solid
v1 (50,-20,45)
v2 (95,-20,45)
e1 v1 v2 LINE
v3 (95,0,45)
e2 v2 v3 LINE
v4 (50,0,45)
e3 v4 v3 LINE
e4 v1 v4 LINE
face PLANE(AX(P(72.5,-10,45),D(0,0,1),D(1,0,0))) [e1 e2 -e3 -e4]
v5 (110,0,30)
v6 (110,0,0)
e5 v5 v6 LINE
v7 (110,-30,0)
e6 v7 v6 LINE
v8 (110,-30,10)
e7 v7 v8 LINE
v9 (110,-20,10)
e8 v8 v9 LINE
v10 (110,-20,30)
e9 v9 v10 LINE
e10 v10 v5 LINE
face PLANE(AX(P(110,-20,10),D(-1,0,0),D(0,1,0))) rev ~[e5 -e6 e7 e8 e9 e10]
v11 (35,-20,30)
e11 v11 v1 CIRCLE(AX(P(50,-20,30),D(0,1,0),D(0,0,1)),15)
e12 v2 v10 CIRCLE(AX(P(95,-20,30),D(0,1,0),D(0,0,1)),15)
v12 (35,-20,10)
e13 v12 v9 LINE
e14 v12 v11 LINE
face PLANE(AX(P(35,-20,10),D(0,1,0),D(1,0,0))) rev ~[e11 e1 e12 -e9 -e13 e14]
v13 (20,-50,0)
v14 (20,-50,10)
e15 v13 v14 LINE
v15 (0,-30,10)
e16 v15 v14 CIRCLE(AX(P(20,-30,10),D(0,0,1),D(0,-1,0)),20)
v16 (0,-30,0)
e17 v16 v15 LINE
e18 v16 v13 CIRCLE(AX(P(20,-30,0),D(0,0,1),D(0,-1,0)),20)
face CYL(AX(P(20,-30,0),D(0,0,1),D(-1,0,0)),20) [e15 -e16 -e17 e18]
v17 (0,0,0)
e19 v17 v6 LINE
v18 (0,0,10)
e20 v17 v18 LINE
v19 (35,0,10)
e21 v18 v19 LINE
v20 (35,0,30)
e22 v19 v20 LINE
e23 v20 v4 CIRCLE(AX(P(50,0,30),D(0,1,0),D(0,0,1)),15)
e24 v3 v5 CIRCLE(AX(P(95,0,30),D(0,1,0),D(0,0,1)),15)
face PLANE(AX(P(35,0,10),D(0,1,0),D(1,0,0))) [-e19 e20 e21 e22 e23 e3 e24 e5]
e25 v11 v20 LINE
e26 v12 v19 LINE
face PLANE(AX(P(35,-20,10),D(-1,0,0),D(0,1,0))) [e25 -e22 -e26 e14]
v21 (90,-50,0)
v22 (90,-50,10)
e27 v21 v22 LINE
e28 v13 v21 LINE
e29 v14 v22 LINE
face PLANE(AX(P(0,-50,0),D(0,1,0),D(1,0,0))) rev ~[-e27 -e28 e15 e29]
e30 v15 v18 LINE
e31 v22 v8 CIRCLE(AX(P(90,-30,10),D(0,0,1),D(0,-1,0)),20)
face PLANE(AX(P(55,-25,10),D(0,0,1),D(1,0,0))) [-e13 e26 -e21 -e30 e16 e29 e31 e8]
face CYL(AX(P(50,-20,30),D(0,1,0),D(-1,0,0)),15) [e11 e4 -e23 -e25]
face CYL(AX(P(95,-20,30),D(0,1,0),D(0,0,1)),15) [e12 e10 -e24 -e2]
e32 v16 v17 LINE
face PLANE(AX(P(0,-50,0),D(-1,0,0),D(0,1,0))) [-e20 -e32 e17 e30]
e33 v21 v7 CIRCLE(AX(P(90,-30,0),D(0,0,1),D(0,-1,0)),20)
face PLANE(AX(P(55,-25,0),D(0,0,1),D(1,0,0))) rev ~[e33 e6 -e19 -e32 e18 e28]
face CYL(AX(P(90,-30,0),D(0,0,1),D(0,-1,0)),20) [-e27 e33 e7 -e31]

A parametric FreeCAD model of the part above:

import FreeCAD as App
import Part
import Sketcher


def edges_at(feature, points):
    """Names of the edges that pass closest to the given points."""
    edges = feature.Shape.Edges
    near = lambda p: min(range(len(edges)), key=lambda i: edges[i].distToShape(Part.Vertex(*p))[0])
    return sorted({f"Edge{near(p) + 1}" for p in points})


def add_polygon(sketch, points):
    """Adds a closed chain of lines whose ends are joined by coincident constraints."""
    first, n = sketch.GeometryCount, len(points)
    for a, b in zip(points, points[1:] + points[:1]):
        sketch.addGeometry(Part.LineSegment(App.Vector(*a, 0), App.Vector(*b, 0)), False)
    for i in range(n):
        sketch.addConstraint(Sketcher.Constraint("Coincident", first + i, 2, first + (i + 1) % n, 1))

doc = App.newDocument("Part")
body = doc.addObject("PartDesign::Body", "Body")

sketch1 = body.newObject("Sketcher::SketchObject", "Sketch")
sketch1.AttachmentSupport = (doc.getObject("XY_Plane"), [""])
sketch1.MapMode = "FlatFace"
add_polygon(sketch1, [(0, 0), (0, -50), (110, -50), (110, 0)])
sketch1.addConstraint([
    Sketcher.Constraint("Vertical", 0),
    Sketcher.Constraint("Horizontal", 1),
    Sketcher.Constraint("Vertical", 2),
    Sketcher.Constraint("Horizontal", 3),
    Sketcher.Constraint("Coincident", 3, 2, -1, 1),
    Sketcher.Constraint("DistanceX", 1, 1, 1, 2, 110.0),
    Sketcher.Constraint("DistanceY", 0, 2, 0, 1, 50.0),
])
pad1 = body.newObject("PartDesign::Pad", "Pad")
pad1.Profile = sketch1
pad1.Length = 10
doc.recompute()

fillet = body.newObject("PartDesign::Fillet", "Fillet")
fillet.Base = (pad1, edges_at(pad1, [(0, -50, 5), (110, -50, 5)]))
fillet.Radius = 20

sketch2 = body.newObject("Sketcher::SketchObject", "Sketch001")
sketch2.AttachmentSupport = (doc.getObject("XY_Plane"), [""])
sketch2.MapMode = "FlatFace"
sketch2.AttachmentOffset = App.Placement(App.Vector(0, 0, 10), App.Rotation())
add_polygon(sketch2, [(35, 0), (35, -20), (110, -20), (110, 0)])
sketch2.addConstraint([
    Sketcher.Constraint("Vertical", 0),
    Sketcher.Constraint("Horizontal", 1),
    Sketcher.Constraint("Vertical", 2),
    Sketcher.Constraint("Horizontal", 3),
    Sketcher.Constraint("PointOnObject", 2, 2, -1),
    Sketcher.Constraint("DistanceX", 1, 1, 1, 2, 75.0),
    Sketcher.Constraint("DistanceY", 0, 2, 0, 1, 20.0),
    Sketcher.Constraint("DistanceX", -1, 1, 0, 2, 35.0),
])
pad2 = body.newObject("PartDesign::Pad", "Pad001")
pad2.Profile = sketch2
pad2.Length = 35
doc.recompute()

fillet2 = body.newObject("PartDesign::Fillet", "Fillet001")
fillet2.Base = (pad2, edges_at(pad2, [(35, -10, 45), (110, -10, 45)]))
fillet2.Radius = 15

doc.recompute()
